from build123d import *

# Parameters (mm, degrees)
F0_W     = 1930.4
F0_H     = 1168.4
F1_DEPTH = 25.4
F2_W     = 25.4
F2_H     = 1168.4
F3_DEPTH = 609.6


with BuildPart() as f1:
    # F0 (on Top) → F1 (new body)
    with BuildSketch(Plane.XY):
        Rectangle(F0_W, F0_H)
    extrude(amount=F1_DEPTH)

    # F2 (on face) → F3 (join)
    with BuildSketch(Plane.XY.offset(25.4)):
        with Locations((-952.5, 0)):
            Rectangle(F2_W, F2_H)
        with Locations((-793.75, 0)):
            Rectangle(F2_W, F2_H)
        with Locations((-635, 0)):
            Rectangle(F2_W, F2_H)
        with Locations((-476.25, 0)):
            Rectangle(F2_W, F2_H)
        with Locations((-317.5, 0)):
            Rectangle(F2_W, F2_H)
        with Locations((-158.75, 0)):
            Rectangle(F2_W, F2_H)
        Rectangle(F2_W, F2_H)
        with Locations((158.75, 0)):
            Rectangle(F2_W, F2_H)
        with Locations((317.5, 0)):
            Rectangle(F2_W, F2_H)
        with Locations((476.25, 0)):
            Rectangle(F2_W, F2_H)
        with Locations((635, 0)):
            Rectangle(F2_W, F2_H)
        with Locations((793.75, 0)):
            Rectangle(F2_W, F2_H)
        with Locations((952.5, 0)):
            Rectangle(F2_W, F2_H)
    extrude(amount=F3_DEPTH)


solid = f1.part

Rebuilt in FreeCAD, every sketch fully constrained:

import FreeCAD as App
import Part
import Sketcher
Q = App.Units.Quantity

doc = App.newDocument("Part")
body = doc.addObject("PartDesign::Body", "Body")

# Sketch on XY plane
sketch1 = doc.addObject("Sketcher::SketchObject", "Sketch")
body.addObject(sketch1)
sketch1.AttachmentSupport = (doc.XY_Plane, [""])
sketch1.MapMode = "FlatFace"
sketch1.addGeometry(Part.LineSegment(App.Vector(-965, 584, 0), App.Vector(-965, -584, 0)), False)
sketch1.addGeometry(Part.LineSegment(App.Vector(-965, -584, 0), App.Vector(965, -584, 0)), False)
sketch1.addGeometry(Part.LineSegment(App.Vector(965, -584, 0), App.Vector(965, 584, 0)), False)
sketch1.addGeometry(Part.LineSegment(App.Vector(965, 584, 0), App.Vector(-965, 584, 0)), False)
sketch1.addConstraint(Sketcher.Constraint("Coincident", 0, 2, 1, 1))
sketch1.addConstraint(Sketcher.Constraint("Coincident", 1, 2, 2, 1))
sketch1.addConstraint(Sketcher.Constraint("Coincident", 2, 2, 3, 1))
sketch1.addConstraint(Sketcher.Constraint("Coincident", 3, 2, 0, 1))
sketch1.addConstraint(Sketcher.Constraint("Vertical", 0))
sketch1.addConstraint(Sketcher.Constraint("Horizontal", 1))
sketch1.addConstraint(Sketcher.Constraint("Vertical", 2))
sketch1.addConstraint(Sketcher.Constraint("Horizontal", 3))
sketch1.addConstraint(Sketcher.Constraint("Symmetric", 0, 2, 2, 2, -1, 1))
sketch1.addConstraint(Sketcher.Constraint("DistanceX", 1, 1, 1, 2, Q("76 in")))
sketch1.addConstraint(Sketcher.Constraint("DistanceY", 0, 2, 0, 1, Q("46 in")))
pad1 = doc.addObject("PartDesign::Pad", "Pad")
body.addObject(pad1)
pad1.Profile = sketch1
pad1.Length = Q("1 in")

# Sketch on XY plane
sketch2 = doc.addObject("Sketcher::SketchObject", "Sketch001")
body.addObject(sketch2)
sketch2.AttachmentSupport = (doc.XY_Plane, [""])
sketch2.MapMode = "FlatFace"
sketch2.AttachmentOffset = App.Placement(App.Vector(0, 0, 1 * 25.4), App.Rotation())
sketch2.addGeometry(Part.LineSegment(App.Vector(-965, 584, 0), App.Vector(-965, -584, 0)), False)
sketch2.addGeometry(Part.LineSegment(App.Vector(-965, -584, 0), App.Vector(-940, -584, 0)), False)
sketch2.addGeometry(Part.LineSegment(App.Vector(-940, -584, 0), App.Vector(-940, 584, 0)), False)
sketch2.addGeometry(Part.LineSegment(App.Vector(-940, 584, 0), App.Vector(-965, 584, 0)), False)
sketch2.addGeometry(Part.LineSegment(App.Vector(-806, 584, 0), App.Vector(-806, -584, 0)), False)
sketch2.addGeometry(Part.LineSegment(App.Vector(-806, -584, 0), App.Vector(-781, -584, 0)), False)
sketch2.addGeometry(Part.LineSegment(App.Vector(-781, -584, 0), App.Vector(-781, 584, 0)), False)
sketch2.addGeometry(Part.LineSegment(App.Vector(-781, 584, 0), App.Vector(-806, 584, 0)), False)
sketch2.addGeometry(Part.LineSegment(App.Vector(-648, 584, 0), App.Vector(-648, -584, 0)), False)
sketch2.addGeometry(Part.LineSegment(App.Vector(-648, -584, 0), App.Vector(-622, -584, 0)), False)
sketch2.addGeometry(Part.LineSegment(App.Vector(-622, -584, 0), App.Vector(-622, 584, 0)), False)
sketch2.addGeometry(Part.LineSegment(App.Vector(-622, 584, 0), App.Vector(-648, 584, 0)), False)
sketch2.addGeometry(Part.LineSegment(App.Vector(-489, 584, 0), App.Vector(-489, -584, 0)), False)
sketch2.addGeometry(Part.LineSegment(App.Vector(-489, -584, 0), App.Vector(-464, -584, 0)), False)
sketch2.addGeometry(Part.LineSegment(App.Vector(-464, -584, 0), App.Vector(-464, 584, 0)), False)
sketch2.addGeometry(Part.LineSegment(App.Vector(-464, 584, 0), App.Vector(-489, 584, 0)), False)
sketch2.addGeometry(Part.LineSegment(App.Vector(-330, 584, 0), App.Vector(-330, -584, 0)), False)
sketch2.addGeometry(Part.LineSegment(App.Vector(-330, -584, 0), App.Vector(-305, -584, 0)), False)
sketch2.addGeometry(Part.LineSegment(App.Vector(-305, -584, 0), App.Vector(-305, 584, 0)), False)
sketch2.addGeometry(Part.LineSegment(App.Vector(-305, 584, 0), App.Vector(-330, 584, 0)), False)
sketch2.addGeometry(Part.LineSegment(App.Vector(-171, 584, 0), App.Vector(-171, -584, 0)), False)
sketch2.addGeometry(Part.LineSegment(App.Vector(-171, -584, 0), App.Vector(-146, -584, 0)), False)
sketch2.addGeometry(Part.LineSegment(App.Vector(-146, -584, 0), App.Vector(-146, 584, 0)), False)
sketch2.addGeometry(Part.LineSegment(App.Vector(-146, 584, 0), App.Vector(-171, 584, 0)), False)
sketch2.addGeometry(Part.LineSegment(App.Vector(-13, 584, 0), App.Vector(-13, -584, 0)), False)
sketch2.addGeometry(Part.LineSegment(App.Vector(-13, -584, 0), App.Vector(13, -584, 0)), False)
sketch2.addGeometry(Part.LineSegment(App.Vector(13, -584, 0), App.Vector(13, 584, 0)), False)
sketch2.addGeometry(Part.LineSegment(App.Vector(13, 584, 0), App.Vector(-13, 584, 0)), False)
sketch2.addGeometry(Part.LineSegment(App.Vector(146, 584, 0), App.Vector(146, -584, 0)), False)
sketch2.addGeometry(Part.LineSegment(App.Vector(146, -584, 0), App.Vector(171, -584, 0)), False)
sketch2.addGeometry(Part.LineSegment(App.Vector(171, -584, 0), App.Vector(171, 584, 0)), False)
sketch2.addGeometry(Part.LineSegment(App.Vector(171, 584, 0), App.Vector(146, 584, 0)), False)
sketch2.addGeometry(Part.LineSegment(App.Vector(305, 584, 0), App.Vector(305, -584, 0)), False)
sketch2.addGeometry(Part.LineSegment(App.Vector(305, -584, 0), App.Vector(330, -584, 0)), False)
sketch2.addGeometry(Part.LineSegment(App.Vector(330, -584, 0), App.Vector(330, 584, 0)), False)
sketch2.addGeometry(Part.LineSegment(App.Vector(330, 584, 0), App.Vector(305, 584, 0)), False)
sketch2.addGeometry(Part.LineSegment(App.Vector(464, 584, 0), App.Vector(464, -584, 0)), False)
sketch2.addGeometry(Part.LineSegment(App.Vector(464, -584, 0), App.Vector(489, -584, 0)), False)
sketch2.addGeometry(Part.LineSegment(App.Vector(489, -584, 0), App.Vector(489, 584, 0)), False)
sketch2.addGeometry(Part.LineSegment(App.Vector(489, 584, 0), App.Vector(464, 584, 0)), False)
sketch2.addGeometry(Part.LineSegment(App.Vector(622, 584, 0), App.Vector(622, -584, 0)), False)
sketch2.addGeometry(Part.LineSegment(App.Vector(622, -584, 0), App.Vector(648, -584, 0)), False)
sketch2.addGeometry(Part.LineSegment(App.Vector(648, -584, 0), App.Vector(648, 584, 0)), False)
sketch2.addGeometry(Part.LineSegment(App.Vector(648, 584, 0), App.Vector(622, 584, 0)), False)
sketch2.addGeometry(Part.LineSegment(App.Vector(781, 584, 0), App.Vector(781, -584, 0)), False)
sketch2.addGeometry(Part.LineSegment(App.Vector(781, -584, 0), App.Vector(806, -584, 0)), False)
sketch2.addGeometry(Part.LineSegment(App.Vector(806, -584, 0), App.Vector(806, 584, 0)), False)
sketch2.addGeometry(Part.LineSegment(App.Vector(806, 584, 0), App.Vector(781, 584, 0)), False)
sketch2.addGeometry(Part.LineSegment(App.Vector(940, 584, 0), App.Vector(940, -584, 0)), False)
sketch2.addGeometry(Part.LineSegment(App.Vector(940, -584, 0), App.Vector(965, -584, 0)), False)
sketch2.addGeometry(Part.LineSegment(App.Vector(965, -584, 0), App.Vector(965, 584, 0)), False)
sketch2.addGeometry(Part.LineSegment(App.Vector(965, 584, 0), App.Vector(940, 584, 0)), False)
sketch2.addConstraint(Sketcher.Constraint("Coincident", 0, 2, 1, 1))
sketch2.addConstraint(Sketcher.Constraint("Coincident", 1, 2, 2, 1))
sketch2.addConstraint(Sketcher.Constraint("Coincident", 2, 2, 3, 1))
sketch2.addConstraint(Sketcher.Constraint("Coincident", 3, 2, 0, 1))
sketch2.addConstraint(Sketcher.Constraint("Coincident", 4, 2, 5, 1))
sketch2.addConstraint(Sketcher.Constraint("Coincident", 5, 2, 6, 1))
sketch2.addConstraint(Sketcher.Constraint("Coincident", 6, 2, 7, 1))
sketch2.addConstraint(Sketcher.Constraint("Coincident", 7, 2, 4, 1))
sketch2.addConstraint(Sketcher.Constraint("Coincident", 8, 2, 9, 1))
sketch2.addConstraint(Sketcher.Constraint("Coincident", 9, 2, 10, 1))
sketch2.addConstraint(Sketcher.Constraint("Coincident", 10, 2, 11, 1))
sketch2.addConstraint(Sketcher.Constraint("Coincident", 11, 2, 8, 1))
sketch2.addConstraint(Sketcher.Constraint("Coincident", 12, 2, 13, 1))
sketch2.addConstraint(Sketcher.Constraint("Coincident", 13, 2, 14, 1))
sketch2.addConstraint(Sketcher.Constraint("Coincident", 14, 2, 15, 1))
sketch2.addConstraint(Sketcher.Constraint("Coincident", 15, 2, 12, 1))
sketch2.addConstraint(Sketcher.Constraint("Coincident", 16, 2, 17, 1))
sketch2.addConstraint(Sketcher.Constraint("Coincident", 17, 2, 18, 1))
sketch2.addConstraint(Sketcher.Constraint("Coincident", 18, 2, 19, 1))
sketch2.addConstraint(Sketcher.Constraint("Coincident", 19, 2, 16, 1))
sketch2.addConstraint(Sketcher.Constraint("Coincident", 20, 2, 21, 1))
sketch2.addConstraint(Sketcher.Constraint("Coincident", 21, 2, 22, 1))
sketch2.addConstraint(Sketcher.Constraint("Coincident", 22, 2, 23, 1))
sketch2.addConstraint(Sketcher.Constraint("Coincident", 23, 2, 20, 1))
sketch2.addConstraint(Sketcher.Constraint("Coincident", 24, 2, 25, 1))
sketch2.addConstraint(Sketcher.Constraint("Coincident", 25, 2, 26, 1))
sketch2.addConstraint(Sketcher.Constraint("Coincident", 26, 2, 27, 1))
sketch2.addConstraint(Sketcher.Constraint("Coincident", 27, 2, 24, 1))
sketch2.addConstraint(Sketcher.Constraint("Coincident", 28, 2, 29, 1))
sketch2.addConstraint(Sketcher.Constraint("Coincident", 29, 2, 30, 1))
sketch2.addConstraint(Sketcher.Constraint("Coincident", 30, 2, 31, 1))
sketch2.addConstraint(Sketcher.Constraint("Coincident", 31, 2, 28, 1))
sketch2.addConstraint(Sketcher.Constraint("Coincident", 32, 2, 33, 1))
sketch2.addConstraint(Sketcher.Constraint("Coincident", 33, 2, 34, 1))
sketch2.addConstraint(Sketcher.Constraint("Coincident", 34, 2, 35, 1))
sketch2.addConstraint(Sketcher.Constraint("Coincident", 35, 2, 32, 1))
sketch2.addConstraint(Sketcher.Constraint("Coincident", 36, 2, 37, 1))
sketch2.addConstraint(Sketcher.Constraint("Coincident", 37, 2, 38, 1))
sketch2.addConstraint(Sketcher.Constraint("Coincident", 38, 2, 39, 1))
sketch2.addConstraint(Sketcher.Constraint("Coincident", 39, 2, 36, 1))
sketch2.addConstraint(Sketcher.Constraint("Coincident", 40, 2, 41, 1))
sketch2.addConstraint(Sketcher.Constraint("Coincident", 41, 2, 42, 1))
sketch2.addConstraint(Sketcher.Constraint("Coincident", 42, 2, 43, 1))
sketch2.addConstraint(Sketcher.Constraint("Coincident", 43, 2, 40, 1))
sketch2.addConstraint(Sketcher.Constraint("Coincident", 44, 2, 45, 1))
sketch2.addConstraint(Sketcher.Constraint("Coincident", 45, 2, 46, 1))
sketch2.addConstraint(Sketcher.Constraint("Coincident", 46, 2, 47, 1))
sketch2.addConstraint(Sketcher.Constraint("Coincident", 47, 2, 44, 1))
sketch2.addConstraint(Sketcher.Constraint("Coincident", 48, 2, 49, 1))
sketch2.addConstraint(Sketcher.Constraint("Coincident", 49, 2, 50, 1))
sketch2.addConstraint(Sketcher.Constraint("Coincident", 50, 2, 51, 1))
sketch2.addConstraint(Sketcher.Constraint("Coincident", 51, 2, 48, 1))
sketch2.addConstraint(Sketcher.Constraint("Vertical", 0))
sketch2.addConstraint(Sketcher.Constraint("Horizontal", 1))
sketch2.addConstraint(Sketcher.Constraint("Vertical", 2))
sketch2.addConstraint(Sketcher.Constraint("Horizontal", 3))
sketch2.addConstraint(Sketcher.Constraint("Vertical", 4))
sketch2.addConstraint(Sketcher.Constraint("Horizontal", 5))
sketch2.addConstraint(Sketcher.Constraint("Vertical", 6))
sketch2.addConstraint(Sketcher.Constraint("Horizontal", 7))
sketch2.addConstraint(Sketcher.Constraint("Vertical", 8))
sketch2.addConstraint(Sketcher.Constraint("Horizontal", 9))
sketch2.addConstraint(Sketcher.Constraint("Vertical", 10))
sketch2.addConstraint(Sketcher.Constraint("Horizontal", 11))
sketch2.addConstraint(Sketcher.Constraint("Vertical", 12))
sketch2.addConstraint(Sketcher.Constraint("Horizontal", 13))
sketch2.addConstraint(Sketcher.Constraint("Vertical", 14))
sketch2.addConstraint(Sketcher.Constraint("Horizontal", 15))
sketch2.addConstraint(Sketcher.Constraint("Vertical", 16))
sketch2.addConstraint(Sketcher.Constraint("Horizontal", 17))
sketch2.addConstraint(Sketcher.Constraint("Vertical", 18))
sketch2.addConstraint(Sketcher.Constraint("Horizontal", 19))
sketch2.addConstraint(Sketcher.Constraint("Vertical", 20))
sketch2.addConstraint(Sketcher.Constraint("Horizontal", 21))
sketch2.addConstraint(Sketcher.Constraint("Vertical", 22))
sketch2.addConstraint(Sketcher.Constraint("Horizontal", 23))
sketch2.addConstraint(Sketcher.Constraint("Vertical", 24))
sketch2.addConstraint(Sketcher.Constraint("Horizontal", 25))
sketch2.addConstraint(Sketcher.Constraint("Vertical", 26))
sketch2.addConstraint(Sketcher.Constraint("Horizontal", 27))
sketch2.addConstraint(Sketcher.Constraint("Vertical", 28))
sketch2.addConstraint(Sketcher.Constraint("Horizontal", 29))
sketch2.addConstraint(Sketcher.Constraint("Vertical", 30))
sketch2.addConstraint(Sketcher.Constraint("Horizontal", 31))
sketch2.addConstraint(Sketcher.Constraint("Vertical", 32))
sketch2.addConstraint(Sketcher.Constraint("Horizontal", 33))
sketch2.addConstraint(Sketcher.Constraint("Vertical", 34))
sketch2.addConstraint(Sketcher.Constraint("Horizontal", 35))
sketch2.addConstraint(Sketcher.Constraint("Vertical", 36))
sketch2.addConstraint(Sketcher.Constraint("Horizontal", 37))
sketch2.addConstraint(Sketcher.Constraint("Vertical", 38))
sketch2.addConstraint(Sketcher.Constraint("Horizontal", 39))
sketch2.addConstraint(Sketcher.Constraint("Vertical", 40))
sketch2.addConstraint(Sketcher.Constraint("Horizontal", 41))
sketch2.addConstraint(Sketcher.Constraint("Vertical", 42))
sketch2.addConstraint(Sketcher.Constraint("Horizontal", 43))
sketch2.addConstraint(Sketcher.Constraint("Vertical", 44))
sketch2.addConstraint(Sketcher.Constraint("Horizontal", 45))
sketch2.addConstraint(Sketcher.Constraint("Vertical", 46))
sketch2.addConstraint(Sketcher.Constraint("Horizontal", 47))
sketch2.addConstraint(Sketcher.Constraint("Vertical", 48))
sketch2.addConstraint(Sketcher.Constraint("Horizontal", 49))
sketch2.addConstraint(Sketcher.Constraint("Vertical", 50))
sketch2.addConstraint(Sketcher.Constraint("Horizontal", 51))
sketch2.addConstraint(Sketcher.Constraint("Symmetric", 24, 2, 26, 2, -1, 1))
sketch2.addConstraint(Sketcher.Constraint("Symmetric", 22, 2, 28, 2, -1, 1))
sketch2.addConstraint(Sketcher.Constraint("Symmetric", 20, 2, 30, 2, -1, 1))
sketch2.addConstraint(Sketcher.Constraint("Symmetric", 18, 2, 32, 2, -1, 1))
sketch2.addConstraint(Sketcher.Constraint("Symmetric", 16, 2, 34, 2, -1, 1))
sketch2.addConstraint(Sketcher.Constraint("Symmetric", 14, 2, 36, 2, -1, 1))
sketch2.addConstraint(Sketcher.Constraint("Symmetric", 12, 2, 38, 2, -1, 1))
sketch2.addConstraint(Sketcher.Constraint("Symmetric", 10, 2, 40, 2, -1, 1))
sketch2.addConstraint(Sketcher.Constraint("Symmetric", 8, 2, 42, 2, -1, 1))
sketch2.addConstraint(Sketcher.Constraint("Symmetric", 6, 2, 44, 2, -1, 1))
sketch2.addConstraint(Sketcher.Constraint("Symmetric", 4, 2, 46, 2, -1, 1))
sketch2.addConstraint(Sketcher.Constraint("Symmetric", 2, 2, 48, 2, -1, 1))
sketch2.addConstraint(Sketcher.Constraint("Symmetric", 0, 2, 50, 2, -1, 1))
sketch2.addConstraint(Sketcher.Constraint("Horizontal", 1, 2, 4, 2))
sketch2.addConstraint(Sketcher.Constraint("Horizontal", 3, 2, 6, 2))
sketch2.addConstraint(Sketcher.Constraint("Horizontal", 5, 2, 8, 2))
sketch2.addConstraint(Sketcher.Constraint("Horizontal", 7, 2, 10, 2))
sketch2.addConstraint(Sketcher.Constraint("Horizontal", 9, 2, 12, 2))
sketch2.addConstraint(Sketcher.Constraint("Horizontal", 11, 2, 14, 2))
sketch2.addConstraint(Sketcher.Constraint("Horizontal", 13, 2, 16, 2))
sketch2.addConstraint(Sketcher.Constraint("Horizontal", 15, 2, 18, 2))
sketch2.addConstraint(Sketcher.Constraint("Horizontal", 17, 2, 20, 2))
sketch2.addConstraint(Sketcher.Constraint("Horizontal", 19, 2, 22, 2))
sketch2.addConstraint(Sketcher.Constraint("Horizontal", 21, 2, 24, 2))
sketch2.addConstraint(Sketcher.Constraint("Horizontal", 23, 2, 26, 2))
sketch2.addConstraint(Sketcher.Constraint("Equal", 3, 5))
sketch2.addConstraint(Sketcher.Constraint("Equal", 7, 9))
sketch2.addConstraint(Sketcher.Constraint("Equal", 11, 13))
sketch2.addConstraint(Sketcher.Constraint("Equal", 15, 17))
sketch2.addConstraint(Sketcher.Constraint("Equal", 19, 21))
sketch2.addConstraint(Sketcher.Constraint("Equal", 23, 25))
sketch2.addConstraint(Sketcher.Constraint("DistanceX", 1, 1, 1, 2, Q("1 in")))
sketch2.addConstraint(Sketcher.Constraint("DistanceY", 0, 2, 0, 1, Q("46 in")))
sketch2.addConstraint(Sketcher.Constraint("DistanceX", 0, 2, -1, 1, Q("38 in")))
sketch2.addConstraint(Sketcher.Constraint("DistanceX", 16, 2, -1, 1, Q("13 in")))
sketch2.addConstraint(Sketcher.Constraint("DistanceX", 8, 2, -1, 1, Q("25.5 in")))
sketch2.addConstraint(Sketcher.Constraint("DistanceX", 5, 2, 12, 2, Q("11.5 in")))
sketch2.addConstraint(Sketcher.Constraint("DistanceX", 13, 2, 20, 2, Q("11.5 in")))
sketch2.addConstraint(Sketcher.Constraint("DistanceX", 21, 2, 28, 2, Q("11.5 in")))
pad2 = doc.addObject("PartDesign::Pad", "Pad001")
body.addObject(pad2)
pad2.Profile = sketch2
pad2.Length = Q("24 in")

doc.recompute()
